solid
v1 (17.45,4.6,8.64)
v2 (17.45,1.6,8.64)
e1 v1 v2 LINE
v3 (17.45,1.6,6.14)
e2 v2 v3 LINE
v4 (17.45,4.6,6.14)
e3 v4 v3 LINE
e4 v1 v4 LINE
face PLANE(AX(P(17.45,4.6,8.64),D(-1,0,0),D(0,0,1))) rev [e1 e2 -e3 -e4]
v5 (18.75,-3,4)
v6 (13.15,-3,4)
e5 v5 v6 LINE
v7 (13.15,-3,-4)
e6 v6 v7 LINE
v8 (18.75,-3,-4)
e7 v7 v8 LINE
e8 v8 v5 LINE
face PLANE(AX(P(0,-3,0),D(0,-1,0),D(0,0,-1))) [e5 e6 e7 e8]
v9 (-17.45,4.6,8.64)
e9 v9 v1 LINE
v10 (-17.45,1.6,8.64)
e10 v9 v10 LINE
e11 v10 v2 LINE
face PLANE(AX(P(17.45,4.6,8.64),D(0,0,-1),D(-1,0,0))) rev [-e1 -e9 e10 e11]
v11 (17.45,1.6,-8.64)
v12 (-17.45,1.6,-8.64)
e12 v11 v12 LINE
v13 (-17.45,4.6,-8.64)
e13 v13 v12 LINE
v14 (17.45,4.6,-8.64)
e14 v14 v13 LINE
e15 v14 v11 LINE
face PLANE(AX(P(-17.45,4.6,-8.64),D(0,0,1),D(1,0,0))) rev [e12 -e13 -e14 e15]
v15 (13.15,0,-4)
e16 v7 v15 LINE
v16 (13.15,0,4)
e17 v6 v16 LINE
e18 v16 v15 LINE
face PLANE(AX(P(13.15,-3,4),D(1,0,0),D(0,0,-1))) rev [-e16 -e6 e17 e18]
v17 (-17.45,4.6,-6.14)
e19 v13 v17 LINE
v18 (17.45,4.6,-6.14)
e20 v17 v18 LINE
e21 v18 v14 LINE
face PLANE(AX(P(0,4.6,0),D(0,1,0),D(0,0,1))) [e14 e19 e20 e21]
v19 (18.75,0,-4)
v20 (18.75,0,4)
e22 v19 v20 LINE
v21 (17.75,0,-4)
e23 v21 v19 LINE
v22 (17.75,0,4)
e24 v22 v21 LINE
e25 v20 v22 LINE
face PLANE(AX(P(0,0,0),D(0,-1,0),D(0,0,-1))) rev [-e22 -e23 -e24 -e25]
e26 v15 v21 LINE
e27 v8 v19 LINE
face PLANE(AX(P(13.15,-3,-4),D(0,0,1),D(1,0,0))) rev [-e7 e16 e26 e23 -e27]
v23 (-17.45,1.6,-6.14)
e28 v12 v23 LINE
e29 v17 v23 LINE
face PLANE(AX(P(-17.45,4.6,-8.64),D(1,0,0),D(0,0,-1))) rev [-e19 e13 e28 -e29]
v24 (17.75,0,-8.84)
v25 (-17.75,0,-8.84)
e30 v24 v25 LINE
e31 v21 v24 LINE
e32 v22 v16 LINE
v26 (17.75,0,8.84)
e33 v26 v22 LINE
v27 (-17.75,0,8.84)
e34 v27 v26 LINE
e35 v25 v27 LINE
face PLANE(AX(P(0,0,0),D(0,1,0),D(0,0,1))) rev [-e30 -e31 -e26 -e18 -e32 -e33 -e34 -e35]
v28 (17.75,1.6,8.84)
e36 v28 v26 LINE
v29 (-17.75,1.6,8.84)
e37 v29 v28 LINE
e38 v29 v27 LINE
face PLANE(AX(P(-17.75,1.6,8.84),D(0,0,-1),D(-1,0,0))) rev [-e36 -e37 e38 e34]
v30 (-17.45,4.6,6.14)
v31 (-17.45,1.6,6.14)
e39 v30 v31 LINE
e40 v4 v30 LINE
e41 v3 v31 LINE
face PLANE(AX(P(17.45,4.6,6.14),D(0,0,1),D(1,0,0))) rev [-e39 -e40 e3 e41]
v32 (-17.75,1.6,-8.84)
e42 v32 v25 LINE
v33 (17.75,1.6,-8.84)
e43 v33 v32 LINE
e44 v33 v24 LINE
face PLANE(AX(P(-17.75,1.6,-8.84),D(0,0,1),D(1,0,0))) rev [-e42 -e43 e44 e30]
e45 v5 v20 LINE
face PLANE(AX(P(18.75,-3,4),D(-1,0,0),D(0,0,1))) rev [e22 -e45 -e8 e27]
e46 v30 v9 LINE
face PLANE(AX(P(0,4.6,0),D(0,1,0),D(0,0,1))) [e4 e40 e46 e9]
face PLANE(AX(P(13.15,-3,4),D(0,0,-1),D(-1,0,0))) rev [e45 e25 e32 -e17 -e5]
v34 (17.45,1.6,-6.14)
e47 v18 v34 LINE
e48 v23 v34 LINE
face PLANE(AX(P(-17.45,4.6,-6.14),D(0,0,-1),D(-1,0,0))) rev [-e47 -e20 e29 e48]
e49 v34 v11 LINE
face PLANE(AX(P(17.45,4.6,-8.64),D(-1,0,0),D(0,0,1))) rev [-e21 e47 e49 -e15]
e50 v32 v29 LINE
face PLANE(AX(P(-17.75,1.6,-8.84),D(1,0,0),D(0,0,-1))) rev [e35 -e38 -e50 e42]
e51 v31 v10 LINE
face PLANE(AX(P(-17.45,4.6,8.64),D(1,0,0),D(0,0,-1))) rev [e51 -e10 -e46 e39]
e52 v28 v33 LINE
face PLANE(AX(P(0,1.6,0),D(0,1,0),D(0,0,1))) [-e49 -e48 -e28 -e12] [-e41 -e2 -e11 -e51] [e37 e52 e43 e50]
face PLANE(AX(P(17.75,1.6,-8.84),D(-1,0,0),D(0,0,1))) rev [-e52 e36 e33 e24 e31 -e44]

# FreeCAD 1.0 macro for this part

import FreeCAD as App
import Part
import Sketcher

doc = App.newDocument("Part")
params = doc.addObject("Spreadsheet::Sheet", "Params")
for row, (alias, value) in enumerate([
    ("sketch1_width", "35.5 mm"),
    ("sketch1_height", "17.68 mm"),
    ("pad1_length", "1.6 mm"),
    ("sketch2_width", "34.9 mm"),
    ("sketch2_height", "2.5 mm"),
    ("pad2_length", "3 mm"),
    ("sketch3_height", "8 mm"),
    ("sketch3_width", "5.6 mm"),
    ("pad3_length", "3 mm"),
], start=1):
    params.set(f"A{row}", alias)
    params.set(f"B{row}", "=" + value)
    params.setAlias(f"B{row}", alias)

body = doc.addObject("PartDesign::Body", "Body")

sketch1 = body.newObject("Sketcher::SketchObject", "Sketch")
sketch1.AttachmentSupport = (doc.getObject("XZ_Plane"), [""])
sketch1.MapMode = "FlatFace"
sketch1.addGeometry([
    Part.LineSegment(App.Vector(-18, -9, 0), App.Vector(-18, 9, 0)),
    Part.LineSegment(App.Vector(-18, 9, 0), App.Vector(18, 9, 0)),
    Part.LineSegment(App.Vector(18, 9, 0), App.Vector(18, -9, 0)),
    Part.LineSegment(App.Vector(18, -9, 0), App.Vector(-18, -9, 0)),
], False)
sketch1.addConstraint([
    Sketcher.Constraint("Coincident", 0, 2, 1, 1),
    Sketcher.Constraint("Coincident", 1, 2, 2, 1),
    Sketcher.Constraint("Coincident", 2, 2, 3, 1),
    Sketcher.Constraint("Coincident", 3, 2, 0, 1),
    Sketcher.Constraint("Vertical", 0),
    Sketcher.Constraint("Horizontal", 1),
    Sketcher.Constraint("Vertical", 2),
    Sketcher.Constraint("Horizontal", 3),
    Sketcher.Constraint("Symmetric", 0, 2, 2, 2, -1, 1),
    Sketcher.Constraint("DistanceX", 1, 1, 1, 2, 35.5),
    Sketcher.Constraint("DistanceY", 0, 1, 0, 2, 17.68),
])
sketch1.setExpression("Constraints[9]", "Params.sketch1_width")
sketch1.setExpression("Constraints[10]", "Params.sketch1_height")
pad1 = body.newObject("PartDesign::Pad", "Pad")
pad1.Profile = sketch1
pad1.setExpression("Length", "Params.pad1_length")
pad1.Reversed = True

sketch2 = body.newObject("Sketcher::SketchObject", "Sketch001")
sketch2.AttachmentSupport = (doc.getObject("XZ_Plane"), [""])
sketch2.MapMode = "FlatFace"
sketch2.AttachmentOffset = App.Placement(App.Vector(0, 0, -1.6), App.Rotation())
sketch2.addGeometry([
    Part.LineSegment(App.Vector(-17.4, -8.6, 0), App.Vector(-17.4, -6.1, 0)),
    Part.LineSegment(App.Vector(-17.4, -6.1, 0), App.Vector(17.4, -6.1, 0)),
    Part.LineSegment(App.Vector(17.4, -6.1, 0), App.Vector(17.4, -8.6, 0)),
    Part.LineSegment(App.Vector(17.4, -8.6, 0), App.Vector(-17.4, -8.6, 0)),
    Part.LineSegment(App.Vector(-17.4, 6.1, 0), App.Vector(-17.4, 8.6, 0)),
    Part.LineSegment(App.Vector(-17.4, 8.6, 0), App.Vector(17.4, 8.6, 0)),
    Part.LineSegment(App.Vector(17.4, 8.6, 0), App.Vector(17.4, 6.1, 0)),
    Part.LineSegment(App.Vector(17.4, 6.1, 0), App.Vector(-17.4, 6.1, 0)),
], False)
sketch2.addConstraint([
    Sketcher.Constraint("Coincident", 0, 2, 1, 1),
    Sketcher.Constraint("Coincident", 1, 2, 2, 1),
    Sketcher.Constraint("Coincident", 2, 2, 3, 1),
    Sketcher.Constraint("Coincident", 3, 2, 0, 1),
    Sketcher.Constraint("Coincident", 4, 2, 5, 1),
    Sketcher.Constraint("Coincident", 5, 2, 6, 1),
    Sketcher.Constraint("Coincident", 6, 2, 7, 1),
    Sketcher.Constraint("Coincident", 7, 2, 4, 1),
    Sketcher.Constraint("Vertical", 0),
    Sketcher.Constraint("Horizontal", 1),
    Sketcher.Constraint("Vertical", 2),
    Sketcher.Constraint("Horizontal", 3),
    Sketcher.Constraint("Vertical", 4),
    Sketcher.Constraint("Horizontal", 5),
    Sketcher.Constraint("Vertical", 6),
    Sketcher.Constraint("Horizontal", 7),
    Sketcher.Constraint("Symmetric", 2, 2, 4, 2, -1, 1),
    Sketcher.Constraint("Symmetric", 0, 2, 6, 2, -1, 1),
    Sketcher.Constraint("Vertical", 3, 2, 4, 2),
    Sketcher.Constraint("DistanceX", 1, 1, 1, 2, 34.9),
    Sketcher.Constraint("DistanceY", 0, 1, 0, 2, 2.5),
    Sketcher.Constraint("DistanceY", 0, 2, -1, 1, 6.14),
])
sketch2.setExpression("Constraints[19]", "Params.sketch2_width")
sketch2.setExpression("Constraints[20]", "Params.sketch2_height")
pad2 = body.newObject("PartDesign::Pad", "Pad001")
pad2.Profile = sketch2
pad2.setExpression("Length", "Params.pad2_length")
pad2.Reversed = True

sketch3 = body.newObject("Sketcher::SketchObject", "Sketch002")
sketch3.AttachmentSupport = (doc.getObject("XZ_Plane"), [""])
sketch3.MapMode = "FlatFace"
sketch3.addGeometry([
    Part.LineSegment(App.Vector(13, 4, 0), App.Vector(13, -4, 0)),
    Part.LineSegment(App.Vector(13, -4, 0), App.Vector(19, -4, 0)),
    Part.LineSegment(App.Vector(19, -4, 0), App.Vector(19, 4, 0)),
    Part.LineSegment(App.Vector(19, 4, 0), App.Vector(13, 4, 0)),
], False)
sketch3.addConstraint([
    Sketcher.Constraint("Coincident", 0, 2, 1, 1),
    Sketcher.Constraint("Coincident", 1, 2, 2, 1),
    Sketcher.Constraint("Coincident", 2, 2, 3, 1),
    Sketcher.Constraint("Coincident", 3, 2, 0, 1),
    Sketcher.Constraint("Vertical", 0),
    Sketcher.Constraint("Horizontal", 1),
    Sketcher.Constraint("Vertical", 2),
    Sketcher.Constraint("Horizontal", 3),
    Sketcher.Constraint("DistanceY", 0, 2, 0, 1, 8.0),
    Sketcher.Constraint("DistanceX", 1, 1, 1, 2, 5.6),
    Sketcher.Constraint("DistanceY", 0, 2, -1, 1, 4.0),
    Sketcher.Constraint("DistanceX", -1, 1, 0, 2, 13.15),
])
sketch3.setExpression("Constraints[8]", "Params.sketch3_height")
sketch3.setExpression("Constraints[9]", "Params.sketch3_width")
pad3 = body.newObject("PartDesign::Pad", "Pad002")
pad3.Profile = sketch3
pad3.setExpression("Length", "Params.pad3_length")

doc.recompute()
